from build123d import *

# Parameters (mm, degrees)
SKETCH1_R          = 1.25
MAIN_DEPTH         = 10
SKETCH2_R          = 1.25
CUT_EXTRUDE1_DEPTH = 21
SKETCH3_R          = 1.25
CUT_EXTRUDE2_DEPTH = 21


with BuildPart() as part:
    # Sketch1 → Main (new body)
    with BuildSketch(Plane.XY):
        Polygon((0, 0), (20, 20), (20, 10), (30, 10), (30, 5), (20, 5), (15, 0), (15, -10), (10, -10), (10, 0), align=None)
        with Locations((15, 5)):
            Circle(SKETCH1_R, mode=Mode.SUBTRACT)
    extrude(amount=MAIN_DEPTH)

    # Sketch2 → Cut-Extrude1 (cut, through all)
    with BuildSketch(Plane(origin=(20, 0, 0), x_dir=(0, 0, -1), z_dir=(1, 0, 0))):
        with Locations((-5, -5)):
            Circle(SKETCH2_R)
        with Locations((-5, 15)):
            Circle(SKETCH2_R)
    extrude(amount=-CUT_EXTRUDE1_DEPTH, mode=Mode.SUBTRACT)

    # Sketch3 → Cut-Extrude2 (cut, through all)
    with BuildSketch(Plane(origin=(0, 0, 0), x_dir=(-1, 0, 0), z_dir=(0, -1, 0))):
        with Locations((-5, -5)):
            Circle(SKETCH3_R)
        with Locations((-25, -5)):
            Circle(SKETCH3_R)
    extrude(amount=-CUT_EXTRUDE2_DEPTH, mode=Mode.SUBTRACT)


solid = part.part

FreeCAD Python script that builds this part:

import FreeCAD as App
import Part
import Sketcher


def add_polygon(sketch, points):
    """Adds a closed chain of lines whose ends are joined by coincident constraints."""
    first, n = sketch.GeometryCount, len(points)
    for a, b in zip(points, points[1:] + points[:1]):
        sketch.addGeometry(Part.LineSegment(App.Vector(*a, 0), App.Vector(*b, 0)), False)
    for i in range(n):
        sketch.addConstraint(Sketcher.Constraint("Coincident", first + i, 2, first + (i + 1) % n, 1))

doc = App.newDocument("Part")
body = doc.addObject("PartDesign::Body", "Body")

# Sketch on XY plane
sketch1 = doc.addObject("Sketcher::SketchObject", "Sketch")
body.addObject(sketch1)
sketch1.AttachmentSupport = (doc.XY_Plane, [""])
sketch1.MapMode = "FlatFace"
add_polygon(sketch1, [(20, 20), (0, 0), (10, 0), (10, -10), (15, -10), (15, 0), (20, 5), (30, 5), (30, 10), (20, 10)])  # lines 0-9
sketch1.addGeometry(Part.Circle(App.Vector(15, 5, 0), App.Vector(0, 0, 1), 1.2), False)  # 10
sketch1.addConstraint([
    Sketcher.Constraint("Horizontal", 1),
    Sketcher.Constraint("Vertical", 2),
    Sketcher.Constraint("Horizontal", 3),
    Sketcher.Constraint("Vertical", 4),
    Sketcher.Constraint("Horizontal", 6),
    Sketcher.Constraint("Vertical", 7),
    Sketcher.Constraint("Horizontal", 8),
    Sketcher.Constraint("Vertical", 9),
    Sketcher.Constraint("Coincident", 0, 2, -1, 1),
    Sketcher.Constraint("PointOnObject", 4, 2, -1),
    Sketcher.Constraint("Parallel", 0, 5),
    Sketcher.Constraint("Horizontal", 10, 3, 5, 2),
    Sketcher.Constraint("Vertical", 10, 3, 3, 2),
    Sketcher.Constraint("Vertical", 5, 2, 8, 2),
    Sketcher.Constraint("Equal", 1, 6),
    Sketcher.Constraint("Equal", 8, 2),
    Sketcher.Constraint("Equal", 3, 7),
    Sketcher.Constraint("Equal", 4, 9),
    Sketcher.Constraint("Diameter", 10, 2.5),
    Sketcher.Constraint("DistanceX", 1, 1, 1, 2, 10.0),
    Sketcher.Constraint("DistanceX", 3, 1, 3, 2, 5.0),
    Sketcher.Constraint("DistanceY", -1, 1, 10, 3, 5.0),
])
pad1 = doc.addObject("PartDesign::Pad", "Pad")
body.addObject(pad1)
pad1.Profile = sketch1
pad1.Length = 10

# Sketch on YZ plane
sketch2 = doc.addObject("Sketcher::SketchObject", "Sketch001")
body.addObject(sketch2)
sketch2.AttachmentSupport = (doc.YZ_Plane, [""])
sketch2.MapMode = "FlatFace"
sketch2.AttachmentOffset = App.Placement(App.Vector(0, 0, 20), App.Rotation())
sketch2.addGeometry([
    Part.Circle(App.Vector(-5, 5, 0), App.Vector(0, 0, 1), 1.2),
    Part.Circle(App.Vector(15, 5, 0), App.Vector(0, 0, 1), 1.2),
], False)
sketch2.addConstraint([
    Sketcher.Constraint("Equal", 0, 1),
    Sketcher.Constraint("Horizontal", 0, 3, 1, 3),
    Sketcher.Constraint("Diameter", 0, 2.5),
    Sketcher.Constraint("DistanceX", 0, 3, -1, 1, 5.0),
    Sketcher.Constraint("DistanceY", -1, 1, 0, 3, 5.0),
    Sketcher.Constraint("DistanceX", -1, 1, 1, 3, 15.0),
])
pocket1 = doc.addObject("PartDesign::Pocket", "Pocket")
body.addObject(pocket1)
pocket1.Profile = sketch2
pocket1.Type = "ThroughAll"

# Sketch on XZ plane
sketch3 = doc.addObject("Sketcher::SketchObject", "Sketch002")
body.addObject(sketch3)
sketch3.AttachmentSupport = (doc.XZ_Plane, [""])
sketch3.MapMode = "FlatFace"
sketch3.addGeometry([
    Part.Circle(App.Vector(5, 5, 0), App.Vector(0, 0, 1), 1.2),
    Part.Circle(App.Vector(25, 5, 0), App.Vector(0, 0, 1), 1.2),
], False)
sketch3.addConstraint([
    Sketcher.Constraint("Equal", 0, 1),
    Sketcher.Constraint("Horizontal", 0, 3, 1, 3),
    Sketcher.Constraint("Diameter", 0, 2.5),
    Sketcher.Constraint("DistanceX", -1, 1, 0, 3, 5.0),
    Sketcher.Constraint("DistanceY", -1, 1, 0, 3, 5.0),
    Sketcher.Constraint("DistanceX", -1, 1, 1, 3, 25.0),
])
pocket2 = doc.addObject("PartDesign::Pocket", "Pocket001")
body.addObject(pocket2)
pocket2.Profile = sketch3
pocket2.Type = "ThroughAll"

doc.recompute()
